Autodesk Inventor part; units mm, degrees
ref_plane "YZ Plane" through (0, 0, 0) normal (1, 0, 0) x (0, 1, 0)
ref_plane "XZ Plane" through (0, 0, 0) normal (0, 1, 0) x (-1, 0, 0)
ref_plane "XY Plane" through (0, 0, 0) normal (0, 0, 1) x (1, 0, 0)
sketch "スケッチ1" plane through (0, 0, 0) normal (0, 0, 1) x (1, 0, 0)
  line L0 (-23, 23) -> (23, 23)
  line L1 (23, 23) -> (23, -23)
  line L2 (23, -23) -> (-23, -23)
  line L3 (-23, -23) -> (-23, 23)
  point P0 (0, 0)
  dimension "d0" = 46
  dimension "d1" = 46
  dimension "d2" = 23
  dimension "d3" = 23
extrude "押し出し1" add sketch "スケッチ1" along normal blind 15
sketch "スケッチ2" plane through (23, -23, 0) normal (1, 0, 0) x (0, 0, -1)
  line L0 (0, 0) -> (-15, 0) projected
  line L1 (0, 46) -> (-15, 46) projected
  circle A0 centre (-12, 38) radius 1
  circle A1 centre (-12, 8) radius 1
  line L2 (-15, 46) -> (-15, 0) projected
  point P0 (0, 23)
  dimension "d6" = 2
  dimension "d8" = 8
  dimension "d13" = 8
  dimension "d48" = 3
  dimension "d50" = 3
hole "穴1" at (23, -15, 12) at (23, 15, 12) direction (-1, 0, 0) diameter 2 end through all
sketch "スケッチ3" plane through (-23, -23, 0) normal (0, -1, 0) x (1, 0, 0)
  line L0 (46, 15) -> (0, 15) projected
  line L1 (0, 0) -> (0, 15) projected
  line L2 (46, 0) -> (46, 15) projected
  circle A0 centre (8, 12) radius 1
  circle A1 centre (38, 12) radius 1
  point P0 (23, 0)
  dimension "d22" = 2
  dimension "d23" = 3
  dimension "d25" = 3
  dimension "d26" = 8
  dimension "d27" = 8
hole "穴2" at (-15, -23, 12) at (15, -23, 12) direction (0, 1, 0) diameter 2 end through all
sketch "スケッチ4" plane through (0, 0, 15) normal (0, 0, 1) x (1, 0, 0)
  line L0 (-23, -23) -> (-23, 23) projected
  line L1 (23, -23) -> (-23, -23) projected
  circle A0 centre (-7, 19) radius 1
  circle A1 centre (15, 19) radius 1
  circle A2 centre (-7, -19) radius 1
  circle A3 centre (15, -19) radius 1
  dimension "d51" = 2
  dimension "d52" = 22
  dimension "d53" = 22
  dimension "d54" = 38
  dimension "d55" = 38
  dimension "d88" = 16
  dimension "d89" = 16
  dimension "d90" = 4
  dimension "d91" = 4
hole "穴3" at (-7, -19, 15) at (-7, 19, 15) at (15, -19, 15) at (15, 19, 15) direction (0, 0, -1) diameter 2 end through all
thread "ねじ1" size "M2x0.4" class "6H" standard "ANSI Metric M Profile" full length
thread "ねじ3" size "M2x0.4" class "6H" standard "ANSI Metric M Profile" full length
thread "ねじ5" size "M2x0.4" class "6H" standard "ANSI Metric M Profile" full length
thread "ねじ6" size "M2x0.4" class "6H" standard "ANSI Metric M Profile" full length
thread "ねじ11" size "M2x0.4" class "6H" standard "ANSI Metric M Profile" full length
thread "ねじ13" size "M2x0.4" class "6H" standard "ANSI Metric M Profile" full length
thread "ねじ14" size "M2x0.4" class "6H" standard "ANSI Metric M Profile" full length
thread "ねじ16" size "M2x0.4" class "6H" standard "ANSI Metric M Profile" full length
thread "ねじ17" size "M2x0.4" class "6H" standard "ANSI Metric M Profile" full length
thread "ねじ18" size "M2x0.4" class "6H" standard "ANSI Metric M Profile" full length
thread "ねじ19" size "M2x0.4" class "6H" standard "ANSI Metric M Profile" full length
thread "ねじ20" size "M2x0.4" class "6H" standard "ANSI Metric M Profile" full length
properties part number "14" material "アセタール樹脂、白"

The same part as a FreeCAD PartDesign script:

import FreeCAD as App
import Part
import Sketcher

V = App.Vector

doc = App.newDocument("Part")
body = doc.addObject("PartDesign::Body", "Body")

sketch1 = body.newObject("Sketcher::SketchObject", "Sketch")
sketch1.AttachmentSupport = (doc.getObject("XY_Plane"), [""])
sketch1.MapMode = "FlatFace"
sketch1.addGeometry([
    Part.LineSegment(V(23, 23, 0), V(-23, 23, 0)),
    Part.LineSegment(V(-23, 23, 0), V(-23, -23, 0)),
    Part.LineSegment(V(-23, -23, 0), V(23, -23, 0)),
    Part.LineSegment(V(23, -23, 0), V(23, 23, 0)),
], False)
sketch1.addConstraint([
    Sketcher.Constraint("Coincident", 0, 2, 1, 1),
    Sketcher.Constraint("Coincident", 1, 2, 2, 1),
    Sketcher.Constraint("Coincident", 2, 2, 3, 1),
    Sketcher.Constraint("Coincident", 3, 2, 0, 1),
    Sketcher.Constraint("Horizontal", 0),
    Sketcher.Constraint("Vertical", 1),
    Sketcher.Constraint("Horizontal", 2),
    Sketcher.Constraint("Vertical", 3),
    Sketcher.Constraint("Symmetric", 0, 2, 2, 2, -1, 1),
    Sketcher.Constraint("Equal", 2, 1),
    Sketcher.Constraint("DistanceX", 0, 2, 0, 1, 46.0),
])
pad1 = body.newObject("PartDesign::Pad", "Pad")
pad1.Profile = sketch1
pad1.Length = 15

sketch2 = body.newObject("Sketcher::SketchObject", "Sketch001")
sketch2.AttachmentSupport = (doc.getObject("YZ_Plane"), [""])
sketch2.MapMode = "FlatFace"
sketch2.AttachmentOffset = App.Placement(V(0, 0, 23), App.Rotation())
sketch2.addGeometry([
    Part.Circle(V(-15, 12, 0), V(0, 0, 1), 1),
    Part.Circle(V(15, 12, 0), V(0, 0, 1), 1),
], False)
sketch2.addConstraint([
    Sketcher.Constraint("Equal", 0, 1),
    Sketcher.Constraint("Symmetric", 0, 3, 1, 3, -2),
    Sketcher.Constraint("Diameter", 0, 2.0),
    Sketcher.Constraint("DistanceX", 0, 3, -1, 1, 15.0),
    Sketcher.Constraint("DistanceY", -1, 1, 0, 3, 12.0),
])
doc.recompute()
hole = body.newObject("PartDesign::Hole", "Hole")
hole.Profile = sketch2
hole.ThreadType = "None"
hole.Diameter = 2
hole.DepthType = "ThroughAll"

sketch3 = body.newObject("Sketcher::SketchObject", "Sketch002")
sketch3.AttachmentSupport = (doc.getObject("XZ_Plane"), [""])
sketch3.MapMode = "FlatFace"
sketch3.AttachmentOffset = App.Placement(V(0, 0, 23), App.Rotation())
sketch3.addGeometry([
    Part.Circle(V(-15, 12, 0), V(0, 0, 1), 1),
    Part.Circle(V(15, 12, 0), V(0, 0, 1), 1),
], False)
sketch3.addConstraint([
    Sketcher.Constraint("Equal", 0, 1),
    Sketcher.Constraint("Symmetric", 0, 3, 1, 3, -2),
    Sketcher.Constraint("Diameter", 0, 2.0),
    Sketcher.Constraint("DistanceX", 0, 3, -1, 1, 15.0),
    Sketcher.Constraint("DistanceY", -1, 1, 0, 3, 12.0),
])
doc.recompute()
hole2 = body.newObject("PartDesign::Hole", "Hole001")
hole2.Profile = sketch3
hole2.ThreadType = "None"
hole2.Diameter = 2
hole2.DepthType = "ThroughAll"

sketch4 = body.newObject("Sketcher::SketchObject", "Sketch003")
sketch4.AttachmentSupport = (doc.getObject("XY_Plane"), [""])
sketch4.MapMode = "FlatFace"
sketch4.AttachmentOffset = App.Placement(V(0, 0, 15), App.Rotation())
sketch4.addGeometry([
    Part.Circle(V(-7, -19, 0), V(0, 0, 1), 1),
    Part.Circle(V(-7, 19, 0), V(0, 0, 1), 1),
    Part.Circle(V(15, -19, 0), V(0, 0, 1), 1),
    Part.Circle(V(15, 19, 0), V(0, 0, 1), 1),
], False)
sketch4.addConstraint([
    Sketcher.Constraint("Equal", 0, 1),
    Sketcher.Constraint("Equal", 1, 2),
    Sketcher.Constraint("Equal", 2, 3),
    Sketcher.Constraint("Symmetric", 0, 3, 1, 3, -1),
    Sketcher.Constraint("Symmetric", 2, 3, 3, 3, -1),
    Sketcher.Constraint("Horizontal", 0, 3, 2, 3),
    Sketcher.Constraint("Diameter", 0, 2.0),
    Sketcher.Constraint("DistanceX", 0, 3, -1, 1, 7.0),
    Sketcher.Constraint("DistanceY", 0, 3, -1, 1, 19.0),
    Sketcher.Constraint("DistanceX", -1, 1, 2, 3, 15.0),
])
doc.recompute()
hole3 = body.newObject("PartDesign::Hole", "Hole002")
hole3.Profile = sketch4
hole3.ThreadType = "None"
hole3.Diameter = 2
hole3.DepthType = "ThroughAll"

doc.recompute()
